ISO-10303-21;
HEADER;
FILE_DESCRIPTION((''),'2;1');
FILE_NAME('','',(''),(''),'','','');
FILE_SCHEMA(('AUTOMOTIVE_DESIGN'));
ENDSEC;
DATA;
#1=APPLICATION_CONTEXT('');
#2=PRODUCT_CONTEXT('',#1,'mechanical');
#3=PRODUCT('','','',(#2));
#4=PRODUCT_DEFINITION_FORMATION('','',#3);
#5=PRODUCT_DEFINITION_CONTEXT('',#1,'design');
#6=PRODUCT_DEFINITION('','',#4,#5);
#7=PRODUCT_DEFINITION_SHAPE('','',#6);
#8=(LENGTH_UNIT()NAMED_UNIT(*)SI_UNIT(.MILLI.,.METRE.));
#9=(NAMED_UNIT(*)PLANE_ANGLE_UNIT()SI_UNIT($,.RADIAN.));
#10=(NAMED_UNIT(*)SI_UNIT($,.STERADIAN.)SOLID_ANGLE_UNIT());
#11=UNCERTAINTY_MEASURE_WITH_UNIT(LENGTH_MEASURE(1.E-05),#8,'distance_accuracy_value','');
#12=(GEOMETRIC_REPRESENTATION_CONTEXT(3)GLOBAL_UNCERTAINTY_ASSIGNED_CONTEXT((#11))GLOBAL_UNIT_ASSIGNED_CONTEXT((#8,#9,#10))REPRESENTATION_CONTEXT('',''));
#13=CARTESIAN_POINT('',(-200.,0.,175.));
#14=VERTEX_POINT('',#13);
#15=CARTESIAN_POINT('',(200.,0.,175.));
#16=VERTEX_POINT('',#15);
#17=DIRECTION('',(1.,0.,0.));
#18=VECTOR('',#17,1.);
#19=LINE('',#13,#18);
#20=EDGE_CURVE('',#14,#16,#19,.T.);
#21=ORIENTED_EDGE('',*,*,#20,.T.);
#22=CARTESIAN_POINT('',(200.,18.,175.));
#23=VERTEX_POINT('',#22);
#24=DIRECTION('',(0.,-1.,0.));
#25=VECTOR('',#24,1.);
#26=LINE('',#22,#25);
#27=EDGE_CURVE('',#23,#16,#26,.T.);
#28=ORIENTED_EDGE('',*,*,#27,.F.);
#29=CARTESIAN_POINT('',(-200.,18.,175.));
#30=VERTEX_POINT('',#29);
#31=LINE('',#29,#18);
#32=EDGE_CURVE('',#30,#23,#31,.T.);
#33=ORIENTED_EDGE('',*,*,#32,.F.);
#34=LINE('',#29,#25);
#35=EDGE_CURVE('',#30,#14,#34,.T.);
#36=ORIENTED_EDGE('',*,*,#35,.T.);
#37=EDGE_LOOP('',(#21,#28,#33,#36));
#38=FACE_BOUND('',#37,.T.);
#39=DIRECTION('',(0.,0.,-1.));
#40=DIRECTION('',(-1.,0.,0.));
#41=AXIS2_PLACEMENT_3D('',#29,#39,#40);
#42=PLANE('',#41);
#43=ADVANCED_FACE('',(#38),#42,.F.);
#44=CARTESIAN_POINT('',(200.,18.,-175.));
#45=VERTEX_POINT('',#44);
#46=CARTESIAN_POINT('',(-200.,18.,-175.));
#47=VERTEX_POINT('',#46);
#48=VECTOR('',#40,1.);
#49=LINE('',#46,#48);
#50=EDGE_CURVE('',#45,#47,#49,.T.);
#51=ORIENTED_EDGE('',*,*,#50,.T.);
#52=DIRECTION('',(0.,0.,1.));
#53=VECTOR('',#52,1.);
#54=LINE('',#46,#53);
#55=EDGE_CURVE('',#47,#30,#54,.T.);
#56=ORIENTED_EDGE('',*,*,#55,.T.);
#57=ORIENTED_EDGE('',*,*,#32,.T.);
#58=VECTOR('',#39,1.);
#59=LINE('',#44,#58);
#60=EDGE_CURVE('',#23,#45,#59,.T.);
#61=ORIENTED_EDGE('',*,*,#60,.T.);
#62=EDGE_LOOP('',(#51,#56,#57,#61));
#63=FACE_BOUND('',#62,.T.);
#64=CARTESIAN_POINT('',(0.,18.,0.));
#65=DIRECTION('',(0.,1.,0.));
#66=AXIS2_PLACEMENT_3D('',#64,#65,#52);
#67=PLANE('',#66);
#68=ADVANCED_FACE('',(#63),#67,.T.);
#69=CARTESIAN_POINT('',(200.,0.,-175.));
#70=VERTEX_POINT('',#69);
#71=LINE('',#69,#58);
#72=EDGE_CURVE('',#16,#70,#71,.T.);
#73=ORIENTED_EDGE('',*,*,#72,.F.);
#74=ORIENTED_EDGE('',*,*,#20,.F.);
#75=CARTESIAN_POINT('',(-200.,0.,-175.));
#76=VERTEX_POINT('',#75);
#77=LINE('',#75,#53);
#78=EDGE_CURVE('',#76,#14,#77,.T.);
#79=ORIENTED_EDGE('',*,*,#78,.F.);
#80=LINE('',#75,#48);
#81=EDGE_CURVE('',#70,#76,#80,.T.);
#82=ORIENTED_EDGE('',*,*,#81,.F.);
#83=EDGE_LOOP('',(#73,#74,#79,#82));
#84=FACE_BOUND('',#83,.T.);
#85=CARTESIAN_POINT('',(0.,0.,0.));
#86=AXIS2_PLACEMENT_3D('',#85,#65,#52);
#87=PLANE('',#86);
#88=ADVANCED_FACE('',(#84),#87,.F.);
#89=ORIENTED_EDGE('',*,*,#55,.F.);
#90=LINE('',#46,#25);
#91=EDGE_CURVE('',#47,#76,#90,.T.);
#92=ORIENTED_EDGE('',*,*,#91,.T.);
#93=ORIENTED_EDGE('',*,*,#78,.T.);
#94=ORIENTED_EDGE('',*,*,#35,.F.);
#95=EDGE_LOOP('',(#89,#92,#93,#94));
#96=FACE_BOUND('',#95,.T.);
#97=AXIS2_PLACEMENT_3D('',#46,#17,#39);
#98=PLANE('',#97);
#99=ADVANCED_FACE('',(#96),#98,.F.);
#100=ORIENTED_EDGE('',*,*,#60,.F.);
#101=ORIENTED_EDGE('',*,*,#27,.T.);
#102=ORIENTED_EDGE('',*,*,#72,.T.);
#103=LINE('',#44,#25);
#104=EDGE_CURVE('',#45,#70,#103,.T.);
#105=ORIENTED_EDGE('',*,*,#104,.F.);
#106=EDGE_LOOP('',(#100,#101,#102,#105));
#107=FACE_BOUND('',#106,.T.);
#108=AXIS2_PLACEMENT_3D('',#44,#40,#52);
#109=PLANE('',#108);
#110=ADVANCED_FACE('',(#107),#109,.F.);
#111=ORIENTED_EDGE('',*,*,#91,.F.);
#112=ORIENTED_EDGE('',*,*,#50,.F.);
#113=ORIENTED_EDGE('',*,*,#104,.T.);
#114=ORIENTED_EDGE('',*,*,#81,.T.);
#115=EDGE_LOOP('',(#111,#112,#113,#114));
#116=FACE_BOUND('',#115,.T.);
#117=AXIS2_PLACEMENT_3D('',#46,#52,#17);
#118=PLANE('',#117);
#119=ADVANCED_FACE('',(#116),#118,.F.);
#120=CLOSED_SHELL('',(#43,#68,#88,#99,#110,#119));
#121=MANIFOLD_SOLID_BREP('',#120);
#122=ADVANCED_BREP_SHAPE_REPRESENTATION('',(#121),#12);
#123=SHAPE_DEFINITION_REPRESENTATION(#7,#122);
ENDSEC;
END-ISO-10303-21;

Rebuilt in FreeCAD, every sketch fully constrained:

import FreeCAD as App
import Part
import Sketcher
from FreeCAD import Vector

doc = App.newDocument("Part")
body = doc.addObject("PartDesign::Body", "Body")

# Sketch on XZ plane
sketch1 = body.newObject("Sketcher::SketchObject", "Sketch")
sketch1.AttachmentSupport = (doc.getObject("XZ_Plane"), [""])
sketch1.MapMode = "FlatFace"
sketch1.addGeometry([
    Part.LineSegment(Vector(-200, -175, 0), Vector(-200, 175, 0)),
    Part.LineSegment(Vector(-200, 175, 0), Vector(200, 175, 0)),
    Part.LineSegment(Vector(200, 175, 0), Vector(200, -175, 0)),
    Part.LineSegment(Vector(200, -175, 0), Vector(-200, -175, 0)),
], False)
sketch1.addConstraint([
    Sketcher.Constraint("Coincident", 0, 2, 1, 1),
    Sketcher.Constraint("Coincident", 1, 2, 2, 1),
    Sketcher.Constraint("Coincident", 2, 2, 3, 1),
    Sketcher.Constraint("Coincident", 3, 2, 0, 1),
    Sketcher.Constraint("Vertical", 0),
    Sketcher.Constraint("Horizontal", 1),
    Sketcher.Constraint("Vertical", 2),
    Sketcher.Constraint("Horizontal", 3),
    Sketcher.Constraint("Symmetric", 0, 2, 2, 2, -1, 1),
    Sketcher.Constraint("DistanceX", 1, 1, 1, 2, 400.0),
    Sketcher.Constraint("DistanceY", 0, 1, 0, 2, 350.0),
])
pad1 = body.newObject("PartDesign::Pad", "Pad")
pad1.Profile = sketch1
pad1.Length = 18
pad1.Reversed = True

doc.recompute()
